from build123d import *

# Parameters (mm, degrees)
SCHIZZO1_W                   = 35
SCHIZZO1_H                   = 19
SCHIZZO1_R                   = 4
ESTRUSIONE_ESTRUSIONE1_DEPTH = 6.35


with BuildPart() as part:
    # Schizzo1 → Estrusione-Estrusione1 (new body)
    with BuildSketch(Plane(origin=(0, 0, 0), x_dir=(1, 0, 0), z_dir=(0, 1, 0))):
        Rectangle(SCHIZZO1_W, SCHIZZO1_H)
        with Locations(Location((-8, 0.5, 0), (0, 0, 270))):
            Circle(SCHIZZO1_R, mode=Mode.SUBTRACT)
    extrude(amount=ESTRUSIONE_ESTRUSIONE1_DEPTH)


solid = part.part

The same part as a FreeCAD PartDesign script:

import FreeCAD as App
import Part
import Sketcher

V = App.Vector

doc = App.newDocument("Part")
body = doc.addObject("PartDesign::Body", "Body")

sketch1 = doc.addObject("Sketcher::SketchObject", "Sketch")
body.addObject(sketch1)
sketch1.AttachmentSupport = (doc.XZ_Plane, [""])
sketch1.MapMode = "FlatFace"
sketch1.addGeometry([
    Part.LineSegment(V(-17.5, -9.5, 0), V(-17.5, 9.5, 0)),
    Part.LineSegment(V(-17.5, 9.5, 0), V(17.5, 9.5, 0)),
    Part.LineSegment(V(17.5, 9.5, 0), V(17.5, -9.5, 0)),
    Part.LineSegment(V(17.5, -9.5, 0), V(-17.5, -9.5, 0)),
    Part.Circle(V(-8, -0.5, 0), V(0, 0, 1), 4),
], False)
sketch1.addConstraint([
    Sketcher.Constraint("Coincident", 0, 2, 1, 1),
    Sketcher.Constraint("Coincident", 1, 2, 2, 1),
    Sketcher.Constraint("Coincident", 2, 2, 3, 1),
    Sketcher.Constraint("Coincident", 3, 2, 0, 1),
    Sketcher.Constraint("Vertical", 0),
    Sketcher.Constraint("Horizontal", 1),
    Sketcher.Constraint("Vertical", 2),
    Sketcher.Constraint("Horizontal", 3),
    Sketcher.Constraint("Symmetric", 0, 2, 2, 2, -1, 1),
    Sketcher.Constraint("Diameter", 4, 8.0),
    Sketcher.Constraint("DistanceX", 1, 1, 1, 2, 35.0),
    Sketcher.Constraint("DistanceY", 0, 1, 0, 2, 19.0),
    Sketcher.Constraint("DistanceX", 4, 3, -1, 1, 8.0),
    Sketcher.Constraint("DistanceY", 4, 3, 0, 2, 10.0),
])
pad1 = doc.addObject("PartDesign::Pad", "Pad")
body.addObject(pad1)
pad1.Profile = sketch1
pad1.Length = 6.35
pad1.Reversed = True

doc.recompute()
